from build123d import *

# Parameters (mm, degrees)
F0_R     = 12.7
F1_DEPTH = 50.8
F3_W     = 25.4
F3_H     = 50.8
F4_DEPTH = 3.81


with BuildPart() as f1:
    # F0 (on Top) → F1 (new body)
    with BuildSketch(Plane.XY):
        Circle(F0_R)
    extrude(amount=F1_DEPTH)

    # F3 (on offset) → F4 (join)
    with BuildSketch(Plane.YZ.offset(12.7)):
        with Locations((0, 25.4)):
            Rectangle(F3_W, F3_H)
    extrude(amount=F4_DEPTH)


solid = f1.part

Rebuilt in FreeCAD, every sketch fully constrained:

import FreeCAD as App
import Part
import Sketcher
Q = App.Units.Quantity


def add_polygon(sketch, points):
    """Adds a closed chain of lines whose ends are joined by coincident constraints."""
    first, n = sketch.GeometryCount, len(points)
    for a, b in zip(points, points[1:] + points[:1]):
        sketch.addGeometry(Part.LineSegment(App.Vector(*a, 0), App.Vector(*b, 0)), False)
    for i in range(n):
        sketch.addConstraint(Sketcher.Constraint("Coincident", first + i, 2, first + (i + 1) % n, 1))

doc = App.newDocument("Part")
params = doc.addObject("Spreadsheet::Sheet", "Params")
for row, (alias, value) in enumerate([
    ("sketch1_diameter", "1 in"),
    ("pad1_length", "2 in"),
    ("sketch2_width", "1 in"),
    ("sketch2_height", "2 in"),
    ("pad2_length", "0.15 in"),
], start=1):
    params.set(f"A{row}", alias)
    params.set(f"B{row}", "=" + value)
    params.setAlias(f"B{row}", alias)

body = doc.addObject("PartDesign::Body", "Body")
body.AllowCompound = True

sketch1 = body.newObject("Sketcher::SketchObject", "Sketch")
sketch1.AttachmentSupport = (doc.getObject("XY_Plane"), [""])
sketch1.MapMode = "FlatFace"
sketch1.addGeometry(Part.Circle(App.Vector(0, 0, 0), App.Vector(0, 0, 1), 12.7), False)
sketch1.addConstraint([
    Sketcher.Constraint("Coincident", 0, 3, -1, 1),
    Sketcher.Constraint("Diameter", 0, Q("1 in")),
])
sketch1.setExpression("Constraints[1]", "Params.sketch1_diameter")
pad1 = body.newObject("PartDesign::Pad", "Pad")
pad1.Profile = sketch1
pad1.setExpression("Length", "Params.pad1_length")

sketch2 = body.newObject("Sketcher::SketchObject", "Sketch001")
sketch2.AttachmentSupport = (doc.getObject("YZ_Plane"), [""])
sketch2.MapMode = "FlatFace"
sketch2.AttachmentOffset = App.Placement(App.Vector(0, 0, 0.5 * 25.4), App.Rotation())
add_polygon(sketch2, [(-12.7, 50.8), (-12.7, 0), (12.7, 0), (12.7, 50.8)])
sketch2.addConstraint([
    Sketcher.Constraint("Vertical", 0),
    Sketcher.Constraint("Horizontal", 1),
    Sketcher.Constraint("Vertical", 2),
    Sketcher.Constraint("Horizontal", 3),
    Sketcher.Constraint("Symmetric", 0, 2, 1, 2, -1, 1),
    Sketcher.Constraint("DistanceX", 1, 1, 1, 2, Q("1 in")),
    Sketcher.Constraint("DistanceY", 0, 2, 0, 1, Q("2 in")),
])
sketch2.setExpression("Constraints[9]", "Params.sketch2_width")
sketch2.setExpression("Constraints[10]", "Params.sketch2_height")
pad2 = body.newObject("PartDesign::Pad", "Pad001")
pad2.Profile = sketch2
pad2.setExpression("Length", "Params.pad2_length")

doc.recompute()
